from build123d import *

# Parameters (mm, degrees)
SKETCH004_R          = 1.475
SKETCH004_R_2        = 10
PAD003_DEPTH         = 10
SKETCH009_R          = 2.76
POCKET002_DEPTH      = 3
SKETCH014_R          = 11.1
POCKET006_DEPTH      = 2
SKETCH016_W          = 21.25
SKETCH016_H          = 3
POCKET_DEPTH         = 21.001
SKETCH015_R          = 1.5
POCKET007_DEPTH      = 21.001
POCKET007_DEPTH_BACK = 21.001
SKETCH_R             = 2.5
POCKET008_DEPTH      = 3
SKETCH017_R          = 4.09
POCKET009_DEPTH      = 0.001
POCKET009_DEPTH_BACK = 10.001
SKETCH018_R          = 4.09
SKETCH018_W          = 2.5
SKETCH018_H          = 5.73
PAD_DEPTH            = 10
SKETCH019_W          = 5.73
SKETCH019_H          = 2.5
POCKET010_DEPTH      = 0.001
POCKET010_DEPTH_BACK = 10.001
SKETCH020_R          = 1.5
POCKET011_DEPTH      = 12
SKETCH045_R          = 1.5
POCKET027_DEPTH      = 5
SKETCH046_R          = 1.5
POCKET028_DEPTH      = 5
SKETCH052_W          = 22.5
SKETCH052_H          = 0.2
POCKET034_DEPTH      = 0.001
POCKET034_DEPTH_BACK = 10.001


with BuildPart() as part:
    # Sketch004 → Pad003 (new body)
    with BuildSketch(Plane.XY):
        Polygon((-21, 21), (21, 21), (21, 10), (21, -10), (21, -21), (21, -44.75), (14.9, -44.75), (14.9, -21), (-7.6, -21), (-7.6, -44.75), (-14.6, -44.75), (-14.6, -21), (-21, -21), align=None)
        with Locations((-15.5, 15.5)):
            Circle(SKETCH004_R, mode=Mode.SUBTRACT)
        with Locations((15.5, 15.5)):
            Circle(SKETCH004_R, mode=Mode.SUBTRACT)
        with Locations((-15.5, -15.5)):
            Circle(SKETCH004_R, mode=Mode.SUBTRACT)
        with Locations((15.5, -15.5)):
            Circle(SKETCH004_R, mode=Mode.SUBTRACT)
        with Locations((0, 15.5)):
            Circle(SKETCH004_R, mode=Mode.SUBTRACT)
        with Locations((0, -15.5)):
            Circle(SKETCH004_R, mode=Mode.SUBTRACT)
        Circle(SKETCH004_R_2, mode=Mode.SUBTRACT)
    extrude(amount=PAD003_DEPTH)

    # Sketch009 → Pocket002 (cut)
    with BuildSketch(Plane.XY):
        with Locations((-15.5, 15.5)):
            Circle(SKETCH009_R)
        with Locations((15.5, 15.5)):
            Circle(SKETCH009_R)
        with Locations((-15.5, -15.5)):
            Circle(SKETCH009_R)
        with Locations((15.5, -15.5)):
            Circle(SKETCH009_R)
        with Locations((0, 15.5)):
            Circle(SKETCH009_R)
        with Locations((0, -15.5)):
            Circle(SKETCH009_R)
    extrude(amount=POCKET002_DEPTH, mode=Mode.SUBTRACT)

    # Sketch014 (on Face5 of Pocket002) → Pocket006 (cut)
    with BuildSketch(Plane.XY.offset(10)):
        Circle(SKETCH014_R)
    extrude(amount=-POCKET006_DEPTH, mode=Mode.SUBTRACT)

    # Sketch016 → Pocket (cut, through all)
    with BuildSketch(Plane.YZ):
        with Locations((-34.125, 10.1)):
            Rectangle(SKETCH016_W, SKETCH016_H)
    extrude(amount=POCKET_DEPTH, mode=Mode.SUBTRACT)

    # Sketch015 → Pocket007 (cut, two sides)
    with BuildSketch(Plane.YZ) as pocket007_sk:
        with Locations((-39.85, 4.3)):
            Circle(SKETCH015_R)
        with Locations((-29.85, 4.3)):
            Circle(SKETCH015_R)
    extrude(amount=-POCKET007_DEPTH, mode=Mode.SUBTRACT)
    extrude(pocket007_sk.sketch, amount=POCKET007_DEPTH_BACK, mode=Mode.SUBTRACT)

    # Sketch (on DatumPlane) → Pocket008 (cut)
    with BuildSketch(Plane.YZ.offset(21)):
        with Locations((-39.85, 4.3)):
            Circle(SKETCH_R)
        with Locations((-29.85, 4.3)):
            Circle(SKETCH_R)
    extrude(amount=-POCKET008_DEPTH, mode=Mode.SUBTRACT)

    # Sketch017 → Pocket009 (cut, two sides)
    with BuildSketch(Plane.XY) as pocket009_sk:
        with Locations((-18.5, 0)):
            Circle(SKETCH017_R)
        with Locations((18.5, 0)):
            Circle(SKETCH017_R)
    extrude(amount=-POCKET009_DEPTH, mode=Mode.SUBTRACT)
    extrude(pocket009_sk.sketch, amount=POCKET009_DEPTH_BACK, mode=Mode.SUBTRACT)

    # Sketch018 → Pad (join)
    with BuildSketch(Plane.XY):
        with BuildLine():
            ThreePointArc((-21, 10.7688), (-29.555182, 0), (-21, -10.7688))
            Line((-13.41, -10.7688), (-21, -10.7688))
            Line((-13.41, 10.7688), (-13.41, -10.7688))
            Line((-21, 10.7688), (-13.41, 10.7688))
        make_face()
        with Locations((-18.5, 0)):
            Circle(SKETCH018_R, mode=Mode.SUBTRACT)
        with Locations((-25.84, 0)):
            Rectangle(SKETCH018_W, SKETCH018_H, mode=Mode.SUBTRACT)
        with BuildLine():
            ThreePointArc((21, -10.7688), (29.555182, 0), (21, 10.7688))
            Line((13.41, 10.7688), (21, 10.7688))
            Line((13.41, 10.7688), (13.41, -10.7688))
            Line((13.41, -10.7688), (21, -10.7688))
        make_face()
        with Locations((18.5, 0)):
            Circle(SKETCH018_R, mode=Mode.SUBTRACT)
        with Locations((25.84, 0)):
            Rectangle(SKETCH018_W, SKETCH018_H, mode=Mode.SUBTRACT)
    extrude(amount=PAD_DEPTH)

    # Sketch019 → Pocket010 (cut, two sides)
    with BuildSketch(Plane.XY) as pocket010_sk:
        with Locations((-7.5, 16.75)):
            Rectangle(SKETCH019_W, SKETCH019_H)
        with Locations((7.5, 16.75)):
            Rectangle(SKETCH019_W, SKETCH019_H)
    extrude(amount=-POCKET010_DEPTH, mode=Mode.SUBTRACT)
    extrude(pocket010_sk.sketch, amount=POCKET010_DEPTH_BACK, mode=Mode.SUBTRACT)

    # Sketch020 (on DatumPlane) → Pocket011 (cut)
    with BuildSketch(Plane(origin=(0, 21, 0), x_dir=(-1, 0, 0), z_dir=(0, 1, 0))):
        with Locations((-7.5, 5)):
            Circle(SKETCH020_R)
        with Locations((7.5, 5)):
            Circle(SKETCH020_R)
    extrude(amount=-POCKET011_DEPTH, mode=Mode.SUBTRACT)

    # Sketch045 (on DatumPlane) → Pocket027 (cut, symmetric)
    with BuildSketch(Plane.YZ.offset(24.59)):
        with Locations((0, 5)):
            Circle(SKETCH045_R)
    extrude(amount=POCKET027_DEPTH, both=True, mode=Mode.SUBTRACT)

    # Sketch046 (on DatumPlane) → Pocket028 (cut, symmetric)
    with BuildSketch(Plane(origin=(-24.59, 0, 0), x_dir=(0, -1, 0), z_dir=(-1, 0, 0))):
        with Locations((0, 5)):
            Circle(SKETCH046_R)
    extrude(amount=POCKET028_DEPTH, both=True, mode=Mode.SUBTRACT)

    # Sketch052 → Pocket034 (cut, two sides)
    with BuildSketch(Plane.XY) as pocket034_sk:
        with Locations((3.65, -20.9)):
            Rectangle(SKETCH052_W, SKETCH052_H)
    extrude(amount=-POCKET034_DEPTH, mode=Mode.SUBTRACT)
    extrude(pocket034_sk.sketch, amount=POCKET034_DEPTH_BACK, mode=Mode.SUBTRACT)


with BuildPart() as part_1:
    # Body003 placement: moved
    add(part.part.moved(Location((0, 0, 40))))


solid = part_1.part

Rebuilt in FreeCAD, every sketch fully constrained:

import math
import FreeCAD as App
import Part
import Sketcher
Q = App.Units.Quantity


def add_polygon(sketch, points):
    """Adds a closed chain of lines whose ends are joined by coincident constraints."""
    first, n = sketch.GeometryCount, len(points)
    for a, b in zip(points, points[1:] + points[:1]):
        sketch.addGeometry(Part.LineSegment(App.Vector(*a, 0), App.Vector(*b, 0)), False)
    for i in range(n):
        sketch.addConstraint(Sketcher.Constraint("Coincident", first + i, 2, first + (i + 1) % n, 1))

doc = App.newDocument("Part")
params = doc.addObject("Spreadsheet::Sheet", "Params")
for row, (alias, value) in enumerate([
    ("sketch1_diameter", "20 mm"),
    ("sketch1_diameter2", "2.95 mm"),
    ("sketch1_width", "42 mm"),
    ("sketch1_width2", "7 mm"),
    ("sketch1_width3", "6.4 mm"),
    ("pad1_length", "10 mm"),
    ("sketch2_diameter", "5.52 mm"),
    ("pocket1_length", "3 mm"),
    ("sketch3_diameter", "22.2 mm"),
    ("pocket2_length", "2 mm"),
    ("sketch4_height", "3 mm"),
    ("sketch4_width", "21.25 mm"),
    ("sketch5_diameter", "3 mm"),
    ("sketch6_diameter", "5 mm"),
    ("pocket5_length", "3 mm"),
    ("sketch7_diameter", "8.18 mm"),
    ("sketch8_diameter", "8.18 mm"),
    ("sketch8_width", "2.5 mm"),
    ("sketch8_width2", "7.59 mm"),
    ("sketch8_height", "5.73 mm"),
    ("pad2_length", "10 mm"),
    ("sketch9_height", "2.5 mm"),
    ("sketch9_width", "5.73 mm"),
    ("sketch10_diameter", "3 mm"),
    ("pocket8_length", "12 mm"),
    ("sketch11_diameter", "3 mm"),
    ("pocket9_length", "10 mm"),
    ("sketch12_diameter", "3 mm"),
    ("pocket10_length", "10 mm"),
    ("sketch13_width", "22.5 mm"),
    ("sketch13_height", "0.2 mm"),
], start=1):
    params.set(f"A{row}", alias)
    params.set(f"B{row}", "=" + value)
    params.setAlias(f"B{row}", alias)

body = doc.addObject("PartDesign::Body", "Body")

sketch1 = doc.addObject("Sketcher::SketchObject", "Sketch")
body.addObject(sketch1)
sketch1.AttachmentSupport = (doc.XY_Plane, [""])
sketch1.MapMode = "FlatFace"
add_polygon(sketch1, [(21, 21), (-21, 21), (-21, -21), (-14.6, -21), (-14.6, -44.8), (-7.6, -44.8), (-7.6, -21), (14.9, -21), (14.9, -44.8), (21, -44.8)])
sketch1.addGeometry(Part.Circle(App.Vector(15.5, -15.5, 0), App.Vector(0, 0, 1), 1.5), False)
sketch1.addGeometry(Part.Circle(App.Vector(0, -15.5, 0), App.Vector(0, 0, 1), 1.5), False)
sketch1.addGeometry(Part.Circle(App.Vector(-15.5, -15.5, 0), App.Vector(0, 0, 1), 1.5), False)
sketch1.addGeometry(Part.Circle(App.Vector(15.5, 15.5, 0), App.Vector(0, 0, 1), 1.5), False)
sketch1.addGeometry(Part.Circle(App.Vector(0, 0, 0), App.Vector(0, 0, 1), 10), False)
sketch1.addGeometry(Part.Circle(App.Vector(0, 15.5, 0), App.Vector(0, 0, 1), 1.5), False)
sketch1.addGeometry(Part.Circle(App.Vector(-15.5, 15.5, 0), App.Vector(0, 0, 1), 1.5), False)
sketch1.addConstraint([
    Sketcher.Constraint("Horizontal", 0),
    Sketcher.Constraint("Vertical", 1),
    Sketcher.Constraint("Horizontal", 2),
    Sketcher.Constraint("Vertical", 3),
    Sketcher.Constraint("Horizontal", 4),
    Sketcher.Constraint("Vertical", 5),
    Sketcher.Constraint("Horizontal", 6),
    Sketcher.Constraint("Vertical", 7),
    Sketcher.Constraint("Horizontal", 8),
    Sketcher.Constraint("Vertical", 9),
    Sketcher.Constraint("Coincident", 14, 3, -1, 1),
    Sketcher.Constraint("Equal", 10, 11),
    Sketcher.Constraint("Equal", 11, 12),
    Sketcher.Constraint("Equal", 12, 13),
    Sketcher.Constraint("Equal", 13, 15),
    Sketcher.Constraint("Equal", 15, 16),
    Sketcher.Constraint("Symmetric", 12, 3, 13, 3, -1, 1),
    Sketcher.Constraint("Symmetric", 11, 3, 15, 3, -1, 1),
    Sketcher.Constraint("Symmetric", 10, 3, 16, 3, -1, 1),
    Sketcher.Constraint("Symmetric", 1, 2, 9, 2, -1, 1),
    Sketcher.Constraint("Symmetric", 10, 3, 12, 3, -2),
    Sketcher.Constraint("PointOnObject", 11, 3, -2),
    Sketcher.Constraint("Horizontal", 10, 3, 11, 3),
    Sketcher.Constraint("Horizontal", 2, 2, 5, 2),
    Sketcher.Constraint("Horizontal", 4, 2, 7, 2),
    Sketcher.Constraint("Equal", 0, 1),
    Sketcher.Constraint("Diameter", 14, Q("20 mm")),
    Sketcher.Constraint("Diameter", 10, Q("2.95 mm")),
    Sketcher.Constraint("DistanceX", 0, 2, 0, 1, Q("42 mm")),
    Sketcher.Constraint("DistanceX", 4, 1, 4, 2, Q("7 mm")),
    Sketcher.Constraint("DistanceX", 2, 1, 2, 2, Q("6.4 mm")),
    Sketcher.Constraint("DistanceX", 6, 1, 6, 2, Q("22.5 mm")),
    Sketcher.Constraint("DistanceX", 12, 3, 10, 3, Q("31 mm")),
    Sketcher.Constraint("DistanceY", 10, 3, 13, 3, Q("31 mm")),
    Sketcher.Constraint("DistanceY", 3, 2, 3, 1, Q("23.75 mm")),
])
sketch1.setExpression("Constraints[36]", "Params.sketch1_diameter")
sketch1.setExpression("Constraints[37]", "Params.sketch1_diameter2")
sketch1.setExpression("Constraints[38]", "Params.sketch1_width")
sketch1.setExpression("Constraints[39]", "Params.sketch1_width2")
sketch1.setExpression("Constraints[40]", "Params.sketch1_width3")
pad1 = doc.addObject("PartDesign::Pad", "Pad")
body.addObject(pad1)
pad1.Profile = sketch1
pad1.setExpression("Length", "Params.pad1_length")

sketch2 = doc.addObject("Sketcher::SketchObject", "Sketch001")
body.addObject(sketch2)
sketch2.AttachmentSupport = (doc.XY_Plane, [""])
sketch2.MapMode = "FlatFace"
sketch2.addGeometry([
    Part.Circle(App.Vector(-15.5, 15.5, 0), App.Vector(0, 0, 1), 2.8),
    Part.Circle(App.Vector(15.5, 15.5, 0), App.Vector(0, 0, 1), 2.8),
    Part.Circle(App.Vector(-15.5, -15.5, 0), App.Vector(0, 0, 1), 2.8),
    Part.Circle(App.Vector(15.5, -15.5, 0), App.Vector(0, 0, 1), 2.8),
    Part.Circle(App.Vector(0, 15.5, 0), App.Vector(0, 0, 1), 2.8),
    Part.Circle(App.Vector(0, -15.5, 0), App.Vector(0, 0, 1), 2.8),
], False)
sketch2.addConstraint([
    Sketcher.Constraint("Equal", 0, 1),
    Sketcher.Constraint("Equal", 1, 2),
    Sketcher.Constraint("Equal", 2, 3),
    Sketcher.Constraint("Equal", 3, 4),
    Sketcher.Constraint("Equal", 4, 5),
    Sketcher.Constraint("Symmetric", 1, 3, 2, 3, -1, 1),
    Sketcher.Constraint("Symmetric", 0, 3, 3, 3, -1, 1),
    Sketcher.Constraint("Symmetric", 4, 3, 5, 3, -1, 1),
    Sketcher.Constraint("Symmetric", 0, 3, 1, 3, -2),
    Sketcher.Constraint("PointOnObject", 4, 3, -2),
    Sketcher.Constraint("Horizontal", 1, 3, 4, 3),
    Sketcher.Constraint("Diameter", 0, Q("5.52 mm")),
    Sketcher.Constraint("DistanceX", 0, 3, 1, 3, Q("31 mm")),
    Sketcher.Constraint("DistanceY", 2, 3, 0, 3, Q("31 mm")),
])
sketch2.setExpression("Constraints[11]", "Params.sketch2_diameter")
pocket1 = doc.addObject("PartDesign::Pocket", "Pocket")
body.addObject(pocket1)
pocket1.Profile = sketch2
pocket1.setExpression("Length", "Params.pocket1_length")
pocket1.Reversed = True

sketch3 = doc.addObject("Sketcher::SketchObject", "Sketch002")
body.addObject(sketch3)
sketch3.AttachmentSupport = (doc.XY_Plane, [""])
sketch3.MapMode = "FlatFace"
sketch3.AttachmentOffset = App.Placement(App.Vector(0, 0, 10), App.Rotation())
sketch3.addGeometry(Part.Circle(App.Vector(0, 0, 0), App.Vector(0, 0, 1), 11), False)
sketch3.addConstraint([
    Sketcher.Constraint("Coincident", 0, 3, -1, 1),
    Sketcher.Constraint("Diameter", 0, Q("22.2 mm")),
])
sketch3.setExpression("Constraints[1]", "Params.sketch3_diameter")
pocket2 = doc.addObject("PartDesign::Pocket", "Pocket001")
body.addObject(pocket2)
pocket2.Profile = sketch3
pocket2.setExpression("Length", "Params.pocket2_length")

sketch4 = doc.addObject("Sketcher::SketchObject", "Sketch003")
body.addObject(sketch4)
sketch4.AttachmentSupport = (doc.YZ_Plane, [""])
sketch4.MapMode = "FlatFace"
add_polygon(sketch4, [(-44.8, 11.6), (-44.8, 8.6), (-23.5, 8.6), (-23.5, 11.6)])
sketch4.addConstraint([
    Sketcher.Constraint("Vertical", 0),
    Sketcher.Constraint("Horizontal", 1),
    Sketcher.Constraint("Vertical", 2),
    Sketcher.Constraint("Horizontal", 3),
    Sketcher.Constraint("DistanceY", 0, 2, 0, 1, Q("3 mm")),
    Sketcher.Constraint("DistanceX", 1, 1, 1, 2, Q("21.25 mm")),
    Sketcher.Constraint("DistanceY", -1, 1, 0, 2, Q("8.6 mm")),
    Sketcher.Constraint("DistanceX", 1, 2, -1, 1, Q("23.5 mm")),
])
sketch4.setExpression("Constraints[8]", "Params.sketch4_height")
sketch4.setExpression("Constraints[9]", "Params.sketch4_width")
pocket3 = doc.addObject("PartDesign::Pocket", "Pocket002")
body.addObject(pocket3)
pocket3.Profile = sketch4
pocket3.Type = "ThroughAll"
pocket3.Reversed = True

sketch5 = doc.addObject("Sketcher::SketchObject", "Sketch004")
body.addObject(sketch5)
sketch5.AttachmentSupport = (doc.YZ_Plane, [""])
sketch5.MapMode = "FlatFace"
sketch5.addGeometry([
    Part.Circle(App.Vector(-39.9, 4.3, 0), App.Vector(0, 0, 1), 1.5),
    Part.Circle(App.Vector(-29.9, 4.3, 0), App.Vector(0, 0, 1), 1.5),
], False)
sketch5.addConstraint([
    Sketcher.Constraint("Equal", 0, 1),
    Sketcher.Constraint("Horizontal", 0, 3, 1, 3),
    Sketcher.Constraint("Diameter", 0, Q("3 mm")),
    Sketcher.Constraint("DistanceX", 0, 3, 1, 3, Q("10 mm")),
    Sketcher.Constraint("DistanceY", -1, 1, 0, 3, Q("4.3 mm")),
    Sketcher.Constraint("DistanceX", 0, 3, -1, 1, Q("39.85 mm")),
])
sketch5.setExpression("Constraints[2]", "Params.sketch5_diameter")
pocket4 = doc.addObject("PartDesign::Pocket", "Pocket003")
body.addObject(pocket4)
pocket4.Profile = sketch5
pocket4.Type = "ThroughAll"
pocket4.Midplane = True

sketch6 = doc.addObject("Sketcher::SketchObject", "Sketch005")
body.addObject(sketch6)
sketch6.AttachmentSupport = (doc.YZ_Plane, [""])
sketch6.MapMode = "FlatFace"
sketch6.AttachmentOffset = App.Placement(App.Vector(0, 0, 21), App.Rotation())
sketch6.addGeometry([
    Part.Circle(App.Vector(-39.9, 4.3, 0), App.Vector(0, 0, 1), 2.5),
    Part.Circle(App.Vector(-29.9, 4.3, 0), App.Vector(0, 0, 1), 2.5),
], False)
sketch6.addConstraint([
    Sketcher.Constraint("Equal", 0, 1),
    Sketcher.Constraint("Horizontal", 0, 3, 1, 3),
    Sketcher.Constraint("Diameter", 0, Q("5 mm")),
    Sketcher.Constraint("DistanceX", 0, 3, 1, 3, Q("10 mm")),
    Sketcher.Constraint("DistanceY", -1, 1, 0, 3, Q("4.3 mm")),
    Sketcher.Constraint("DistanceX", 0, 3, -1, 1, Q("39.85 mm")),
])
sketch6.setExpression("Constraints[2]", "Params.sketch6_diameter")
pocket5 = doc.addObject("PartDesign::Pocket", "Pocket004")
body.addObject(pocket5)
pocket5.Profile = sketch6
pocket5.setExpression("Length", "Params.pocket5_length")

sketch7 = doc.addObject("Sketcher::SketchObject", "Sketch006")
body.addObject(sketch7)
sketch7.AttachmentSupport = (doc.XY_Plane, [""])
sketch7.MapMode = "FlatFace"
sketch7.addGeometry([
    Part.Circle(App.Vector(-18.5, 0, 0), App.Vector(0, 0, 1), 4.1),
    Part.Circle(App.Vector(18.5, 0, 0), App.Vector(0, 0, 1), 4.1),
], False)
sketch7.addConstraint([
    Sketcher.Constraint("Equal", 0, 1),
    Sketcher.Constraint("Symmetric", 0, 3, 1, 3, -1, 1),
    Sketcher.Constraint("PointOnObject", 0, 3, -1),
    Sketcher.Constraint("Diameter", 0, Q("8.18 mm")),
    Sketcher.Constraint("DistanceX", 0, 3, 1, 3, Q("37 mm")),
])
sketch7.setExpression("Constraints[3]", "Params.sketch7_diameter")
pocket6 = doc.addObject("PartDesign::Pocket", "Pocket005")
body.addObject(pocket6)
pocket6.Profile = sketch7
pocket6.Type = "ThroughAll"
pocket6.Midplane = True

sketch8 = doc.addObject("Sketcher::SketchObject", "Sketch007")
body.addObject(sketch8)
sketch8.AttachmentSupport = (doc.XY_Plane, [""])
sketch8.MapMode = "FlatFace"
sketch8.addGeometry(Part.ArcOfCircle(Part.Circle(App.Vector(-18.5, 0, 0), App.Vector(0, 0, 1), 11.1), math.radians(103), math.radians(257)), False)
sketch8.addGeometry(Part.LineSegment(App.Vector(-21, -10.8, 0), App.Vector(-13.4, -10.8, 0)), False)
sketch8.addGeometry(Part.LineSegment(App.Vector(-13.4, -10.8, 0), App.Vector(-13.4, 10.8, 0)), False)
sketch8.addGeometry(Part.LineSegment(App.Vector(-13.4, 10.8, 0), App.Vector(-21, 10.8, 0)), False)
add_polygon(sketch8, [(-24.6, -2.9), (-27.1, -2.9), (-27.1, 2.9), (-24.6, 2.9)])
sketch8.addGeometry(Part.Circle(App.Vector(-18.5, 0, 0), App.Vector(0, 0, 1), 4.1), False)
sketch8.addGeometry(Part.ArcOfCircle(Part.Circle(App.Vector(18.5, 0, 0), App.Vector(0, 0, 1), 11.1), math.radians(-77), math.radians(77)), False)
sketch8.addGeometry(Part.LineSegment(App.Vector(21, 10.8, 0), App.Vector(13.4, 10.8, 0)), False)
sketch8.addGeometry(Part.LineSegment(App.Vector(13.4, 10.8, 0), App.Vector(13.4, -10.8, 0)), False)
sketch8.addGeometry(Part.LineSegment(App.Vector(13.4, -10.8, 0), App.Vector(21, -10.8, 0)), False)
sketch8.addGeometry(Part.Circle(App.Vector(18.5, 0, 0), App.Vector(0, 0, 1), 4.1), False)
add_polygon(sketch8, [(27.1, -2.9), (24.6, -2.9), (24.6, 2.9), (27.1, 2.9)])
sketch8.addConstraint([
    Sketcher.Constraint("Coincident", 0, 2, 1, 1),
    Sketcher.Constraint("Coincident", 1, 2, 2, 1),
    Sketcher.Constraint("Coincident", 2, 2, 3, 1),
    Sketcher.Constraint("Coincident", 3, 2, 0, 1),
    Sketcher.Constraint("Coincident", 9, 2, 10, 1),
    Sketcher.Constraint("Coincident", 10, 2, 11, 1),
    Sketcher.Constraint("Coincident", 11, 2, 12, 1),
    Sketcher.Constraint("Coincident", 12, 2, 9, 1),
    Sketcher.Constraint("Horizontal", 1),
    Sketcher.Constraint("Vertical", 2),
    Sketcher.Constraint("Horizontal", 3),
    Sketcher.Constraint("Horizontal", 4),
    Sketcher.Constraint("Vertical", 5),
    Sketcher.Constraint("Horizontal", 6),
    Sketcher.Constraint("Vertical", 7),
    Sketcher.Constraint("Horizontal", 10),
    Sketcher.Constraint("Vertical", 11),
    Sketcher.Constraint("Horizontal", 12),
    Sketcher.Constraint("Horizontal", 14),
    Sketcher.Constraint("Vertical", 15),
    Sketcher.Constraint("Horizontal", 16),
    Sketcher.Constraint("Vertical", 17),
    Sketcher.Constraint("Coincident", 8, 3, 0, 3),
    Sketcher.Constraint("Coincident", 13, 3, 9, 3),
    Sketcher.Constraint("Equal", 0, 9),
    Sketcher.Constraint("Equal", 8, 13),
    Sketcher.Constraint("Symmetric", 0, 3, 9, 3, -1, 1),
    Sketcher.Constraint("Symmetric", 1, 2, 10, 2, -1, 1),
    Sketcher.Constraint("Symmetric", 6, 2, 14, 2, -1, 1),
    Sketcher.Constraint("Symmetric", 4, 2, 16, 2, -1, 1),
    Sketcher.Constraint("Symmetric", 3, 2, 9, 2, -2),
    Sketcher.Constraint("Horizontal", 1, 2, 11, 2),
    Sketcher.Constraint("Horizontal", 7, 2, 14, 2),
    Sketcher.Constraint("Diameter", 8, Q("8.18 mm")),
    Sketcher.Constraint("DistanceX", 4, 2, 4, 1, Q("2.5 mm")),
    Sketcher.Constraint("DistanceX", 0, 2, -1, 1, Q("21 mm")),
    Sketcher.Constraint("DistanceX", 0, 3, 9, 3, Q("36.999999 mm")),
    Sketcher.Constraint("DistanceX", 1, 1, 1, 2, Q("7.59 mm")),
    Sketcher.Constraint("DistanceY", 5, 1, 5, 2, Q("5.73 mm")),
    Sketcher.Constraint("DistanceX", 4, 2, -1, 1, Q("27.09 mm")),
    Sketcher.Constraint("DistanceY", 2, 1, 2, 2, Q("21.5376 mm")),
])
sketch8.setExpression("Constraints[41]", "Params.sketch8_diameter")
sketch8.setExpression("Constraints[42]", "Params.sketch8_width")
sketch8.setExpression("Constraints[45]", "Params.sketch8_width2")
sketch8.setExpression("Constraints[46]", "Params.sketch8_height")
pad2 = doc.addObject("PartDesign::Pad", "Pad001")
body.addObject(pad2)
pad2.Profile = sketch8
pad2.setExpression("Length", "Params.pad2_length")

sketch9 = doc.addObject("Sketcher::SketchObject", "Sketch008")
body.addObject(sketch9)
sketch9.AttachmentSupport = (doc.XY_Plane, [""])
sketch9.MapMode = "FlatFace"
add_polygon(sketch9, [(-10.4, 18), (-10.4, 15.5), (-4.6, 15.5), (-4.6, 18)])
add_polygon(sketch9, [(4.6, 18), (4.6, 15.5), (10.4, 15.5), (10.4, 18)])
sketch9.addConstraint([
    Sketcher.Constraint("Vertical", 0),
    Sketcher.Constraint("Horizontal", 1),
    Sketcher.Constraint("Vertical", 2),
    Sketcher.Constraint("Horizontal", 3),
    Sketcher.Constraint("Vertical", 4),
    Sketcher.Constraint("Horizontal", 5),
    Sketcher.Constraint("Vertical", 6),
    Sketcher.Constraint("Horizontal", 7),
    Sketcher.Constraint("Symmetric", 1, 2, 4, 2, -2),
    Sketcher.Constraint("Symmetric", 3, 2, 6, 2, -2),
    Sketcher.Constraint("DistanceY", 0, 2, 0, 1, Q("2.5 mm")),
    Sketcher.Constraint("DistanceY", -1, 1, 2, 2, Q("18 mm")),
    Sketcher.Constraint("DistanceX", 0, 2, 4, 2, Q("15 mm")),
    Sketcher.Constraint("DistanceX", 1, 1, 1, 2, Q("5.73 mm")),
])
sketch9.setExpression("Constraints[18]", "Params.sketch9_height")
sketch9.setExpression("Constraints[21]", "Params.sketch9_width")
pocket7 = doc.addObject("PartDesign::Pocket", "Pocket006")
body.addObject(pocket7)
pocket7.Profile = sketch9
pocket7.Type = "ThroughAll"
pocket7.Midplane = True

sketch10 = doc.addObject("Sketcher::SketchObject", "Sketch009")
body.addObject(sketch10)
sketch10.AttachmentSupport = (doc.XZ_Plane, [""])
sketch10.MapMode = "FlatFace"
sketch10.AttachmentOffset = App.Placement(App.Vector(0, 0, -21), App.Rotation())
sketch10.addGeometry([
    Part.Circle(App.Vector(7.5, 5, 0), App.Vector(0, 0, 1), 1.5),
    Part.Circle(App.Vector(-7.5, 5, 0), App.Vector(0, 0, 1), 1.5),
], False)
sketch10.addConstraint([
    Sketcher.Constraint("Equal", 0, 1),
    Sketcher.Constraint("Symmetric", 0, 3, 1, 3, -2),
    Sketcher.Constraint("Diameter", 0, Q("3 mm")),
    Sketcher.Constraint("DistanceY", -1, 1, 0, 3, Q("5 mm")),
    Sketcher.Constraint("DistanceX", 1, 3, 0, 3, Q("15 mm")),
])
sketch10.setExpression("Constraints[2]", "Params.sketch10_diameter")
pocket8 = doc.addObject("PartDesign::Pocket", "Pocket007")
body.addObject(pocket8)
pocket8.Profile = sketch10
pocket8.setExpression("Length", "Params.pocket8_length")
pocket8.Reversed = True

sketch11 = doc.addObject("Sketcher::SketchObject", "Sketch010")
body.addObject(sketch11)
sketch11.AttachmentSupport = (doc.YZ_Plane, [""])
sketch11.MapMode = "FlatFace"
sketch11.AttachmentOffset = App.Placement(App.Vector(0, 0, 24.59), App.Rotation())
sketch11.addGeometry(Part.Circle(App.Vector(0, 5, 0), App.Vector(0, 0, 1), 1.5), False)
sketch11.addConstraint([
    Sketcher.Constraint("PointOnObject", 0, 3, -2),
    Sketcher.Constraint("Diameter", 0, Q("3 mm")),
    Sketcher.Constraint("DistanceY", -1, 1, 0, 3, Q("5 mm")),
])
sketch11.setExpression("Constraints[1]", "Params.sketch11_diameter")
pocket9 = doc.addObject("PartDesign::Pocket", "Pocket008")
body.addObject(pocket9)
pocket9.Profile = sketch11
pocket9.setExpression("Length", "Params.pocket9_length")
pocket9.Midplane = True

sketch12 = doc.addObject("Sketcher::SketchObject", "Sketch011")
body.addObject(sketch12)
sketch12.AttachmentSupport = (doc.YZ_Plane, [""])
sketch12.MapMode = "FlatFace"
sketch12.AttachmentOffset = App.Placement(App.Vector(0, 0, -24.59), App.Rotation())
sketch12.addGeometry(Part.Circle(App.Vector(0, 5, 0), App.Vector(0, 0, 1), 1.5), False)
sketch12.addConstraint([
    Sketcher.Constraint("PointOnObject", 0, 3, -2),
    Sketcher.Constraint("Diameter", 0, Q("3 mm")),
    Sketcher.Constraint("DistanceY", -1, 1, 0, 3, Q("5 mm")),
])
sketch12.setExpression("Constraints[1]", "Params.sketch12_diameter")
pocket10 = doc.addObject("PartDesign::Pocket", "Pocket009")
body.addObject(pocket10)
pocket10.Profile = sketch12
pocket10.setExpression("Length", "Params.pocket10_length")
pocket10.Midplane = True

sketch13 = doc.addObject("Sketcher::SketchObject", "Sketch012")
body.addObject(sketch13)
sketch13.AttachmentSupport = (doc.XY_Plane, [""])
sketch13.MapMode = "FlatFace"
add_polygon(sketch13, [(-7.6, -20.8), (-7.6, -21), (14.9, -21), (14.9, -20.8)])
sketch13.addConstraint([
    Sketcher.Constraint("Vertical", 0),
    Sketcher.Constraint("Horizontal", 1),
    Sketcher.Constraint("Vertical", 2),
    Sketcher.Constraint("Horizontal", 3),
    Sketcher.Constraint("DistanceX", 1, 1, 1, 2, Q("22.5 mm")),
    Sketcher.Constraint("DistanceY", 0, 2, 0, 1, Q("0.2 mm")),
    Sketcher.Constraint("DistanceY", 0, 2, -1, 1, Q("21 mm")),
    Sketcher.Constraint("DistanceX", 0, 2, -1, 1, Q("7.6 mm")),
])
sketch13.setExpression("Constraints[8]", "Params.sketch13_width")
sketch13.setExpression("Constraints[9]", "Params.sketch13_height")
pocket11 = doc.addObject("PartDesign::Pocket", "Pocket010")
body.addObject(pocket11)
pocket11.Profile = sketch13
pocket11.Type = "ThroughAll"
pocket11.Midplane = True
body2 = doc.addObject("PartDesign::Body", "Body001")
doc.recompute()

body.Placement = App.Placement(App.Vector(0, 0, 40), App.Rotation(App.Vector(0, 0, 1), 0))
boolean = doc.addObject("PartDesign::Boolean", "Boolean")
body2.addObject(boolean)
boolean.Type = "Fuse"
boolean.addObjects([body])

doc.recompute()
